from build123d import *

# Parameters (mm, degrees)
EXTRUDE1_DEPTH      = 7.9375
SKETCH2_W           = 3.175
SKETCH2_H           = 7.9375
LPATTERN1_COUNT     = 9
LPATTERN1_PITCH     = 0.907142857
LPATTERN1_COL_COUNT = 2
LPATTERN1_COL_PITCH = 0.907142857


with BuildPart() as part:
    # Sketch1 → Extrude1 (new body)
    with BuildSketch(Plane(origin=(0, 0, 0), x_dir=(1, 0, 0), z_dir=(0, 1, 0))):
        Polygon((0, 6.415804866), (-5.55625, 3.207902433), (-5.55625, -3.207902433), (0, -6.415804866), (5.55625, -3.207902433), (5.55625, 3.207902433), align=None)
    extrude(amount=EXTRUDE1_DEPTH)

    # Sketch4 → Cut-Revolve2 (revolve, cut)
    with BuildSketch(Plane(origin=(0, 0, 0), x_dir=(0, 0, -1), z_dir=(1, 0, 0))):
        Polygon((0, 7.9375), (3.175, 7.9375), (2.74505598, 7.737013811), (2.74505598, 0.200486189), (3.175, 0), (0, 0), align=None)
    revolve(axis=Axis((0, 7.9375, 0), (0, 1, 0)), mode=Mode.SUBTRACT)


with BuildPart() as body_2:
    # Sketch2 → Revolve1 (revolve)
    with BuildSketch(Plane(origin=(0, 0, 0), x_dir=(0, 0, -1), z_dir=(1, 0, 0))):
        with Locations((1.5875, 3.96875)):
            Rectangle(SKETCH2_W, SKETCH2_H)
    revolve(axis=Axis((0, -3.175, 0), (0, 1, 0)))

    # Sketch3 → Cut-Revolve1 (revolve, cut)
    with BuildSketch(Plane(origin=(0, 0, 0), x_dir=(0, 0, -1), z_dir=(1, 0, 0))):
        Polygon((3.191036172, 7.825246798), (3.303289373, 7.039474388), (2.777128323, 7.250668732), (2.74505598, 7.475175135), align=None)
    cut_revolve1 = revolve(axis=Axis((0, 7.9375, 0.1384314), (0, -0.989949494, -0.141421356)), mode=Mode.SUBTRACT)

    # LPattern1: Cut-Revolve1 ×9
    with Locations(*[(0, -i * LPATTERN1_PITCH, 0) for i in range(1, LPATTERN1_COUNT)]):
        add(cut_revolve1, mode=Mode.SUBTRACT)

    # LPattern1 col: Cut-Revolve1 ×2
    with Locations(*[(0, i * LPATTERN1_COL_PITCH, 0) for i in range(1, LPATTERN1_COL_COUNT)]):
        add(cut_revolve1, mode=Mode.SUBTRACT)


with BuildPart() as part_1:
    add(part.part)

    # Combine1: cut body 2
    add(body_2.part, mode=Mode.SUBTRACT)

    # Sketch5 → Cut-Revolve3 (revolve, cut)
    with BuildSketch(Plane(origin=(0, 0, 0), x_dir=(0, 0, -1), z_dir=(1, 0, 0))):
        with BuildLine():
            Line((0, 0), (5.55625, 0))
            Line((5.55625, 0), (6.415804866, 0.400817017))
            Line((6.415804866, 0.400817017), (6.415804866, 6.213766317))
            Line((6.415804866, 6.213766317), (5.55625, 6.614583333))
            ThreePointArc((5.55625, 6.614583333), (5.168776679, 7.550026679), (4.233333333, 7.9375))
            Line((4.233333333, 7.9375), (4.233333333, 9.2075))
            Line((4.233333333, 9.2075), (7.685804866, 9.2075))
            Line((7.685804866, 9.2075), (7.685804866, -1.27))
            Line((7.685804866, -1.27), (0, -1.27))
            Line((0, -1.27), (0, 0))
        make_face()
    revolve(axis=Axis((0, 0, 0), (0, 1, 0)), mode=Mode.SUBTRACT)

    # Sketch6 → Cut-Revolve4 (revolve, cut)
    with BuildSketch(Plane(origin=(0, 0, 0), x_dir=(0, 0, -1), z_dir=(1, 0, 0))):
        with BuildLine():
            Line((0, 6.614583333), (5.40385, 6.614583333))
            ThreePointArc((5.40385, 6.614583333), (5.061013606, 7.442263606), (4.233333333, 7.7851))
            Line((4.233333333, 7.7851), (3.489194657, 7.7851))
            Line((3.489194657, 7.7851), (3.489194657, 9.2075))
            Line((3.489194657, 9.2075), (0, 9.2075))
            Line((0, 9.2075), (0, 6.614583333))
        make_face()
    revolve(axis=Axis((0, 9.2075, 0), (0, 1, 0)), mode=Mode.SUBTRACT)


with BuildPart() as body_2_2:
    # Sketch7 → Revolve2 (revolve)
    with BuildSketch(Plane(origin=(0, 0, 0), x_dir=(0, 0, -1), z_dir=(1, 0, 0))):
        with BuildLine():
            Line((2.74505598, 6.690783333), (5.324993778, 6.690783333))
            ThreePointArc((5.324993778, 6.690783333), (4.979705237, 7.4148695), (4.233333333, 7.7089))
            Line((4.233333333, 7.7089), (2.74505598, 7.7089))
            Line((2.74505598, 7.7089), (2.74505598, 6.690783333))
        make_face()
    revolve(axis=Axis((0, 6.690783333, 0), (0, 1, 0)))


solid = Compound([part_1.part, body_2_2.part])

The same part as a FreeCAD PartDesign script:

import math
import FreeCAD as App
import Part
import Sketcher

V = App.Vector
Q = App.Units.Quantity

doc = App.newDocument("Part")
body = doc.addObject("PartDesign::Body", "Body")

# Sketch on XZ plane
sketch1 = body.newObject("Sketcher::SketchObject", "Sketch")
sketch1.AttachmentSupport = (doc.getObject("XZ_Plane"), [""])
sketch1.MapMode = "FlatFace"
sketch1.addGeometry([
    Part.LineSegment(V(0, -6, 0), V(-6, -3, 0)),  # 0
    Part.LineSegment(V(-6, -3, 0), V(-6, 3, 0)),  # 1
    Part.LineSegment(V(-6, 3, 0), V(0, 6, 0)),  # 2
    Part.LineSegment(V(0, 6, 0), V(6, 3, 0)),  # 3
    Part.LineSegment(V(6, 3, 0), V(6, -3, 0)),  # 4
    Part.LineSegment(V(6, -3, 0), V(0, -6, 0)),  # 5
], False)
sketch1.addConstraint([
    Sketcher.Constraint("Coincident", 0, 2, 1, 1),
    Sketcher.Constraint("Coincident", 1, 2, 2, 1),
    Sketcher.Constraint("Coincident", 2, 2, 3, 1),
    Sketcher.Constraint("Coincident", 3, 2, 4, 1),
    Sketcher.Constraint("Coincident", 4, 2, 5, 1),
    Sketcher.Constraint("Coincident", 5, 2, 0, 1),
    Sketcher.Constraint("Vertical", 1),
    Sketcher.Constraint("Vertical", 4),
    Sketcher.Constraint("Symmetric", 0, 2, 3, 2, -1, 1),
    Sketcher.Constraint("Symmetric", 2, 2, 5, 2, -1, 1),
    Sketcher.Constraint("PointOnObject", 2, 2, -2),
    Sketcher.Constraint("Parallel", 2, 5),
    Sketcher.Constraint("Horizontal", 1, 2, 3, 2),
    Sketcher.Constraint("Angle", 0, Q("150 deg")),
    Sketcher.Constraint("DistanceX", 0, 2, -1, 1, Q("0.21875 in")),
    Sketcher.Constraint("DistanceY", 1, 1, 1, 2, Q("6.415805 mm")),
])
pad1 = body.newObject("PartDesign::Pad", "Pad")
pad1.Profile = sketch1
pad1.Length = Q("0.3125 in")
pad1.Reversed = True

# Sketch on YZ plane
sketch2 = body.newObject("Sketcher::SketchObject", "Sketch001")
sketch2.AttachmentSupport = (doc.getObject("YZ_Plane"), [""])
sketch2.MapMode = "FlatFace"
sketch2.addGeometry([
    Part.LineSegment(V(7.94, -3.17, 0), V(7.94, 0, 0)),  # 0
    Part.LineSegment(V(7.94, 0, 0), V(0, 0, 0)),  # 1
    Part.LineSegment(V(0, 0, 0), V(0, -3.17, 0)),  # 2
    Part.LineSegment(V(0, -3.17, 0), V(0.2, -2.75, 0)),  # 3
    Part.LineSegment(V(0.2, -2.75, 0), V(7.74, -2.75, 0)),  # 4
    Part.LineSegment(V(7.74, -2.75, 0), V(7.94, -3.17, 0)),  # 5
], False)
sketch2.addConstraint([
    Sketcher.Constraint("Coincident", 0, 2, 1, 1),
    Sketcher.Constraint("Coincident", 1, 2, 2, 1),
    Sketcher.Constraint("Coincident", 2, 2, 3, 1),
    Sketcher.Constraint("Coincident", 3, 2, 4, 1),
    Sketcher.Constraint("Coincident", 4, 2, 5, 1),
    Sketcher.Constraint("Coincident", 5, 2, 0, 1),
    Sketcher.Constraint("Vertical", 0),
    Sketcher.Constraint("Horizontal", 1),
    Sketcher.Constraint("Vertical", 2),
    Sketcher.Constraint("Horizontal", 4),
    Sketcher.Constraint("Coincident", 1, 2, -1, 1),
    Sketcher.Constraint("Horizontal", 2, 2, 5, 2),
    Sketcher.Constraint("Equal", 3, 5),
    Sketcher.Constraint("Angle", 3, Q("65 deg")),
    Sketcher.Constraint("DistanceX", 1, 2, 1, 1, Q("0.3125 in")),
    Sketcher.Constraint("DistanceY", 0, 1, 0, 2, Q("0.125 in")),
    Sketcher.Constraint("Distance", 3, Q("0.474391 mm")),
])
groove = body.newObject("PartDesign::Groove", "Groove")
groove.Profile = sketch2
groove.ReferenceAxis = (sketch2, ["H_Axis"])
groove.Angle = 360
body2 = doc.addObject("PartDesign::Body", "Body001")

# Sketch on YZ plane
sketch3 = body2.newObject("Sketcher::SketchObject", "Sketch002")
sketch3.AttachmentSupport = (doc.getObject("YZ_Plane001"), [""])
sketch3.MapMode = "FlatFace"
sketch3.addGeometry([
    Part.LineSegment(V(7.9, 0, 0), V(0, 0, 0)),
    Part.LineSegment(V(0, 0, 0), V(0, -3.2, 0)),
    Part.LineSegment(V(0, -3.2, 0), V(7.9, -3.2, 0)),
    Part.LineSegment(V(7.9, -3.2, 0), V(7.9, 0, 0)),
], False)
sketch3.addConstraint([
    Sketcher.Constraint("Coincident", 0, 2, 1, 1),
    Sketcher.Constraint("Coincident", 1, 2, 2, 1),
    Sketcher.Constraint("Coincident", 2, 2, 3, 1),
    Sketcher.Constraint("Coincident", 3, 2, 0, 1),
    Sketcher.Constraint("Horizontal", 0),
    Sketcher.Constraint("Vertical", 1),
    Sketcher.Constraint("Horizontal", 2),
    Sketcher.Constraint("Vertical", 3),
    Sketcher.Constraint("Coincident", 0, 2, -1, 1),
    Sketcher.Constraint("DistanceX", 0, 2, 0, 1, Q("0.3125 in")),
    Sketcher.Constraint("DistanceY", 1, 2, 1, 1, Q("0.125 in")),
])
revolution = body2.newObject("PartDesign::Revolution", "Revolution")
revolution.Profile = sketch3
revolution.ReferenceAxis = (sketch3, ["H_Axis"])
revolution.Angle = 360

# Sketch on YZ plane
sketch4 = body2.newObject("Sketcher::SketchObject", "Sketch003")
sketch4.AttachmentSupport = (doc.getObject("YZ_Plane001"), [""])
sketch4.MapMode = "FlatFace"
sketch4.addGeometry([
    Part.LineSegment(V(7.04, -3.3, 0), V(7.83, -3.19, 0)),
    Part.LineSegment(V(7.83, -3.19, 0), V(7.48, -2.75, 0)),
    Part.LineSegment(V(7.48, -2.75, 0), V(7.25, -2.78, 0)),
    Part.LineSegment(V(7.25, -2.78, 0), V(7.04, -3.3, 0)),
], False)
sketch4.addGeometry(Part.LineSegment(V(7.36, 0.06, 0), V(6.58, -0.06, 0)), True)  # axis
sketch4.addConstraint([
    Sketcher.Constraint("Coincident", 0, 2, 1, 1),
    Sketcher.Constraint("Coincident", 1, 2, 2, 1),
    Sketcher.Constraint("Coincident", 2, 2, 3, 1),
    Sketcher.Constraint("Coincident", 3, 2, 0, 1),
    Sketcher.Constraint("Parallel", 0, 2),
    Sketcher.Constraint("Parallel", 2, 4),
    Sketcher.Constraint("Equal", 1, 3),
    Sketcher.Constraint("Equal", 0, 4),
    Sketcher.Constraint("Distance", 0, Q("0.03125 in")),
    Sketcher.Constraint("DistanceX", 3, 2, 1, 2, Q("0.435701 mm")),
    Sketcher.Constraint("DistanceY", 2, 2, 4, 2, Q("2.721002 mm")),
    Sketcher.Constraint("DistanceX", -1, 1, 2, 2, Q("7.250669 mm")),
    Sketcher.Constraint("DistanceY", 2, 2, -1, 1, Q("2.777128 mm")),
    Sketcher.Constraint("DistanceY", 3, 2, -1, 1, Q("3.303289 mm")),
    Sketcher.Constraint("DistanceX", 1, 2, 0, 2, Q("0.350072 mm")),
    Sketcher.Constraint("DistanceX", 4, 1, 1, 2, Q("0.113809 mm")),
])
groove2 = body2.newObject("PartDesign::Groove", "Groove001")
groove2.Profile = sketch4
groove2.ReferenceAxis = (sketch4, ["Axis0"])
groove2.Angle = 360
doc.recompute()

linearpattern = body2.newObject("PartDesign::LinearPattern", "LinearPattern")
linearpattern.Originals = [groove2]
linearpattern.Direction = (doc.getObject("Y_Axis001"), [""])
linearpattern.Mode = "offset"
linearpattern.Offset = 0.907143
linearpattern.Occurrences = 9
linearpattern.Reversed = True
body2.Tip = linearpattern
doc.recompute()

linearpattern2 = body2.newObject("PartDesign::LinearPattern", "LinearPattern001")
linearpattern2.Originals = [groove2]
linearpattern2.Direction = (doc.getObject("Y_Axis001"), [""])
linearpattern2.Mode = "offset"
linearpattern2.Offset = 0.907143
linearpattern2.Occurrences = 2
body2.Tip = linearpattern2
doc.recompute()

boolean = body.newObject("PartDesign::Boolean", "Boolean")
boolean.Type = "Cut"
boolean.addObjects([body2])

# Sketch on YZ plane
sketch5 = body.newObject("Sketcher::SketchObject", "Sketch004")
sketch5.AttachmentSupport = (doc.getObject("YZ_Plane"), [""])
sketch5.MapMode = "FlatFace"
sketch5.addGeometry([
    Part.LineSegment(V(0, -5.6, 0), V(0, 0, 0)),  # 0
    Part.LineSegment(V(0, 0, 0), V(-1.3, 0, 0)),  # 1
    Part.LineSegment(V(-1.3, 0, 0), V(-1.3, -7.7, 0)),  # 2
    Part.LineSegment(V(-1.3, -7.7, 0), V(9.2, -7.7, 0)),  # 3
    Part.LineSegment(V(9.2, -7.7, 0), V(9.2, -4.2, 0)),  # 4
    Part.LineSegment(V(9.2, -4.2, 0), V(7.9, -4.2, 0)),  # 5
    Part.ArcOfCircle(Part.Circle(V(6.6, -4.2, 0), V(0, 0, 1), 1.3), math.radians(-90), math.radians(0)),  # 6
    Part.LineSegment(V(6.6, -5.6, 0), V(6.2, -6.4, 0)),  # 7
    Part.LineSegment(V(6.2, -6.4, 0), V(0.4, -6.4, 0)),  # 8
    Part.LineSegment(V(0.4, -6.4, 0), V(0, -5.6, 0)),  # 9
], False)
sketch5.addConstraint([
    Sketcher.Constraint("Coincident", 0, 2, 1, 1),
    Sketcher.Constraint("Coincident", 1, 2, 2, 1),
    Sketcher.Constraint("Coincident", 2, 2, 3, 1),
    Sketcher.Constraint("Coincident", 3, 2, 4, 1),
    Sketcher.Constraint("Coincident", 4, 2, 5, 1),
    Sketcher.Constraint("Coincident", 5, 2, 6, 2),
    Sketcher.Constraint("Coincident", 6, 1, 7, 1),
    Sketcher.Constraint("Coincident", 7, 2, 8, 1),
    Sketcher.Constraint("Coincident", 8, 2, 9, 1),
    Sketcher.Constraint("Coincident", 9, 2, 0, 1),
    Sketcher.Constraint("Vertical", 0),
    Sketcher.Constraint("Horizontal", 1),
    Sketcher.Constraint("Vertical", 2),
    Sketcher.Constraint("Horizontal", 3),
    Sketcher.Constraint("Vertical", 4),
    Sketcher.Constraint("Horizontal", 5),
    Sketcher.Constraint("Horizontal", 8),
    Sketcher.Constraint("Coincident", 0, 2, -1, 1),
    Sketcher.Constraint("Horizontal", 6, 3, 4, 2),
    Sketcher.Constraint("Horizontal", 6, 1, 9, 2),
    Sketcher.Constraint("Equal", 1, 5),
    Sketcher.Constraint("Equal", 7, 9),
    Sketcher.Constraint("Angle", 7, Q("-115 deg")),
    Sketcher.Constraint("DistanceX", 1, 2, 1, 1, Q("0.05 in")),
    Sketcher.Constraint("DistanceY", 0, 1, 0, 2, Q("0.21875 in")),
    Sketcher.Constraint("DistanceY", 3, 2, 7, 2, Q("0.05 in")),
    Sketcher.Constraint("DistanceX", 3, 1, 3, 2, Q("0.4125 in")),
    Sketcher.Constraint("Radius", 6, Q("1.322917 mm")),
    Sketcher.Constraint("DistanceX", 8, 2, 8, 1, Q("5.812949 mm")),
    Sketcher.Constraint("DistanceY", 4, 1, 4, 2, Q("3.452472 mm")),
])
groove3 = body.newObject("PartDesign::Groove", "Groove002")
groove3.Profile = sketch5
groove3.ReferenceAxis = (sketch5, ["H_Axis"])
groove3.Angle = 360

# Sketch on YZ plane
sketch6 = body.newObject("Sketcher::SketchObject", "Sketch005")
sketch6.AttachmentSupport = (doc.getObject("YZ_Plane"), [""])
sketch6.MapMode = "FlatFace"
sketch6.addGeometry([
    Part.LineSegment(V(6.6, 0, 0), V(6.6, -5.4, 0)),  # 0
    Part.ArcOfCircle(Part.Circle(V(6.6, -4.2, 0), V(0, 0, 1), 1.2), math.radians(-90), math.radians(0)),  # 1
    Part.LineSegment(V(7.8, -4.2, 0), V(7.8, -3.5, 0)),  # 2
    Part.LineSegment(V(7.8, -3.5, 0), V(9.2, -3.5, 0)),  # 3
    Part.LineSegment(V(9.2, -3.5, 0), V(9.2, 0, 0)),  # 4
    Part.LineSegment(V(9.2, 0, 0), V(6.6, 0, 0)),  # 5
], False)
sketch6.addConstraint([
    Sketcher.Constraint("Coincident", 0, 2, 1, 1),
    Sketcher.Constraint("Tangent", 1, 2, 2, 1),
    Sketcher.Constraint("Coincident", 2, 2, 3, 1),
    Sketcher.Constraint("Coincident", 3, 2, 4, 1),
    Sketcher.Constraint("Coincident", 4, 2, 5, 1),
    Sketcher.Constraint("Coincident", 5, 2, 0, 1),
    Sketcher.Constraint("Vertical", 0),
    Sketcher.Constraint("Vertical", 2),
    Sketcher.Constraint("Horizontal", 3),
    Sketcher.Constraint("Vertical", 4),
    Sketcher.Constraint("Horizontal", 5),
    Sketcher.Constraint("PointOnObject", 4, 2, -1),
    Sketcher.Constraint("Vertical", 1, 3, 0, 2),
    Sketcher.Constraint("DistanceX", 3, 1, 3, 2, Q("0.056 in")),
    Sketcher.Constraint("DistanceX", -1, 1, 1, 2, Q("0.3065 in")),
    Sketcher.Constraint("Radius", 1, Q("1.170517 mm")),
    Sketcher.Constraint("DistanceY", 0, 2, 0, 1, Q("5.40385 mm")),
    Sketcher.Constraint("DistanceY", 2, 1, 2, 2, Q("0.744139 mm")),
])
groove4 = body.newObject("PartDesign::Groove", "Groove003")
groove4.Profile = sketch6
groove4.ReferenceAxis = (sketch6, ["H_Axis"])
groove4.Angle = 360
body3 = doc.addObject("PartDesign::Body", "Body002")

# Sketch on YZ plane
sketch7 = body3.newObject("Sketcher::SketchObject", "Sketch006")
sketch7.AttachmentSupport = (doc.getObject("YZ_Plane002"), [""])
sketch7.MapMode = "FlatFace"
sketch7.addGeometry([
    Part.LineSegment(V(6.7, -2.7, 0), V(6.7, -5.3, 0)),
    Part.ArcOfCircle(Part.Circle(V(6.6, -4.2, 0), V(0, 0, 1), 1.1), math.radians(-86), math.radians(0)),
    Part.LineSegment(V(7.7, -4.2, 0), V(7.7, -2.7, 0)),
    Part.LineSegment(V(7.7, -2.7, 0), V(6.7, -2.7, 0)),
], False)
sketch7.addConstraint([
    Sketcher.Constraint("Coincident", 0, 2, 1, 1),
    Sketcher.Constraint("Tangent", 1, 2, 2, 1),
    Sketcher.Constraint("Coincident", 2, 2, 3, 1),
    Sketcher.Constraint("Coincident", 3, 2, 0, 1),
    Sketcher.Constraint("Vertical", 0),
    Sketcher.Constraint("Vertical", 2),
    Sketcher.Constraint("Horizontal", 3),
    Sketcher.Constraint("DistanceX", 1, 3, 0, 2, Q("0.003 in")),
    Sketcher.Constraint("DistanceX", -1, 1, 1, 2, Q("0.3035 in")),
    Sketcher.Constraint("Radius", 1, Q("1.094317 mm")),
    Sketcher.Constraint("DistanceY", 0, 2, 0, 1, Q("2.579938 mm")),
    Sketcher.Constraint("DistanceY", 1, 3, -1, 1, Q("4.233333 mm")),
])
revolution2 = body3.newObject("PartDesign::Revolution", "Revolution001")
revolution2.Profile = sketch7
revolution2.ReferenceAxis = (sketch7, ["H_Axis"])
revolution2.Angle = 360

doc.recompute()
